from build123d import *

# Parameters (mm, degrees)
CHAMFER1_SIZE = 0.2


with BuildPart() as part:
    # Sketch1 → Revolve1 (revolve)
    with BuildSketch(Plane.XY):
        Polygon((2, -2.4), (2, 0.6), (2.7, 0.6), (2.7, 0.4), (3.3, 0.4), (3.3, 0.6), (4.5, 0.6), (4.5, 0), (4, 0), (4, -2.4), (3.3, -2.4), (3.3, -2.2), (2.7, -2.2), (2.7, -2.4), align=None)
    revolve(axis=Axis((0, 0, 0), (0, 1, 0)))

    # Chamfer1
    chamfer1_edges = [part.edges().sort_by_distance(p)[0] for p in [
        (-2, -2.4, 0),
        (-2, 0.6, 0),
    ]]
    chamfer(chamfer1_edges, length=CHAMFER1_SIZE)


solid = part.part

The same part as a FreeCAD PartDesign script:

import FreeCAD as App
import Part
import Sketcher
Q = App.Units.Quantity


def edges_at(feature, points):
    """Names of the edges that pass closest to the given points."""
    edges = feature.Shape.Edges
    near = lambda p: min(range(len(edges)), key=lambda i: edges[i].distToShape(Part.Vertex(*p))[0])
    return sorted({f"Edge{near(p) + 1}" for p in points})

doc = App.newDocument("Part")
params = doc.addObject("Spreadsheet::Sheet", "Params")
for row, (alias, value) in enumerate([
    ("sketch1_height", "3 mm"),
    ("sketch1_width", "0.7 mm"),
    ("sketch1_width2", "0.6 mm"),
    ("sketch1_width3", "0.5 mm"),
    ("sketch1_height2", "0.2 mm"),
    ("revolution_angle", "360 deg"),
    ("chamfer_size", "0.2 mm"),
], start=1):
    params.set(f"A{row}", alias)
    params.set(f"B{row}", "=" + value)
    params.setAlias(f"B{row}", alias)

body = doc.addObject("PartDesign::Body", "Body")

# Sketch on XY plane
sketch1 = body.newObject("Sketcher::SketchObject", "Sketch")
sketch1.AttachmentSupport = (doc.getObject("XY_Plane"), [""])
sketch1.MapMode = "FlatFace"
sketch1.addGeometry(Part.LineSegment(App.Vector(2, 0.6, 0), App.Vector(2, -2.4, 0)), False)
sketch1.addGeometry(Part.LineSegment(App.Vector(2, -2.4, 0), App.Vector(2.7, -2.4, 0)), False)
sketch1.addGeometry(Part.LineSegment(App.Vector(2.7, -2.4, 0), App.Vector(2.7, -2.2, 0)), False)
sketch1.addGeometry(Part.LineSegment(App.Vector(2.7, -2.2, 0), App.Vector(3.3, -2.2, 0)), False)
sketch1.addGeometry(Part.LineSegment(App.Vector(3.3, -2.2, 0), App.Vector(3.3, -2.4, 0)), False)
sketch1.addGeometry(Part.LineSegment(App.Vector(3.3, -2.4, 0), App.Vector(4, -2.4, 0)), False)
sketch1.addGeometry(Part.LineSegment(App.Vector(4, -2.4, 0), App.Vector(4, 0, 0)), False)
sketch1.addGeometry(Part.LineSegment(App.Vector(4, 0, 0), App.Vector(4.5, 0, 0)), False)
sketch1.addGeometry(Part.LineSegment(App.Vector(4.5, 0, 0), App.Vector(4.5, 0.6, 0)), False)
sketch1.addGeometry(Part.LineSegment(App.Vector(4.5, 0.6, 0), App.Vector(3.3, 0.6, 0)), False)
sketch1.addGeometry(Part.LineSegment(App.Vector(3.3, 0.6, 0), App.Vector(3.3, 0.4, 0)), False)
sketch1.addGeometry(Part.LineSegment(App.Vector(3.3, 0.4, 0), App.Vector(2.7, 0.4, 0)), False)
sketch1.addGeometry(Part.LineSegment(App.Vector(2.7, 0.4, 0), App.Vector(2.7, 0.6, 0)), False)
sketch1.addGeometry(Part.LineSegment(App.Vector(2.7, 0.6, 0), App.Vector(2, 0.6, 0)), False)
sketch1.addConstraint(Sketcher.Constraint("Coincident", 0, 2, 1, 1))
sketch1.addConstraint(Sketcher.Constraint("Coincident", 1, 2, 2, 1))
sketch1.addConstraint(Sketcher.Constraint("Coincident", 2, 2, 3, 1))
sketch1.addConstraint(Sketcher.Constraint("Coincident", 3, 2, 4, 1))
sketch1.addConstraint(Sketcher.Constraint("Coincident", 4, 2, 5, 1))
sketch1.addConstraint(Sketcher.Constraint("Coincident", 5, 2, 6, 1))
sketch1.addConstraint(Sketcher.Constraint("Coincident", 6, 2, 7, 1))
sketch1.addConstraint(Sketcher.Constraint("Coincident", 7, 2, 8, 1))
sketch1.addConstraint(Sketcher.Constraint("Coincident", 8, 2, 9, 1))
sketch1.addConstraint(Sketcher.Constraint("Coincident", 9, 2, 10, 1))
sketch1.addConstraint(Sketcher.Constraint("Coincident", 10, 2, 11, 1))
sketch1.addConstraint(Sketcher.Constraint("Coincident", 11, 2, 12, 1))
sketch1.addConstraint(Sketcher.Constraint("Coincident", 12, 2, 13, 1))
sketch1.addConstraint(Sketcher.Constraint("Coincident", 13, 2, 0, 1))
sketch1.addConstraint(Sketcher.Constraint("Vertical", 0))
sketch1.addConstraint(Sketcher.Constraint("Horizontal", 1))
sketch1.addConstraint(Sketcher.Constraint("Vertical", 2))
sketch1.addConstraint(Sketcher.Constraint("Horizontal", 3))
sketch1.addConstraint(Sketcher.Constraint("Vertical", 4))
sketch1.addConstraint(Sketcher.Constraint("Horizontal", 5))
sketch1.addConstraint(Sketcher.Constraint("Vertical", 6))
sketch1.addConstraint(Sketcher.Constraint("Horizontal", 7))
sketch1.addConstraint(Sketcher.Constraint("Vertical", 8))
sketch1.addConstraint(Sketcher.Constraint("Horizontal", 9))
sketch1.addConstraint(Sketcher.Constraint("Vertical", 10))
sketch1.addConstraint(Sketcher.Constraint("Horizontal", 11))
sketch1.addConstraint(Sketcher.Constraint("Vertical", 12))
sketch1.addConstraint(Sketcher.Constraint("Horizontal", 13))
sketch1.addConstraint(Sketcher.Constraint("PointOnObject", 6, 2, -1))
sketch1.addConstraint(Sketcher.Constraint("Horizontal", 1, 2, 4, 2))
sketch1.addConstraint(Sketcher.Constraint("Horizontal", 9, 2, 12, 2))
sketch1.addConstraint(Sketcher.Constraint("Vertical", 4, 2, 9, 2))
sketch1.addConstraint(Sketcher.Constraint("Vertical", 2, 2, 11, 2))
sketch1.addConstraint(Sketcher.Constraint("Equal", 1, 5))
sketch1.addConstraint(Sketcher.Constraint("Equal", 11, 8))
sketch1.addConstraint(Sketcher.Constraint("Equal", 4, 10))
sketch1.addConstraint(Sketcher.Constraint("DistanceY", 0, 2, 0, 1, Q("3 mm")))
sketch1.addConstraint(Sketcher.Constraint("DistanceX", 1, 1, 1, 2, Q("0.7 mm")))
sketch1.addConstraint(Sketcher.Constraint("DistanceX", 3, 1, 3, 2, Q("0.6 mm")))
sketch1.addConstraint(Sketcher.Constraint("DistanceX", 7, 1, 7, 2, Q("0.5 mm")))
sketch1.addConstraint(Sketcher.Constraint("DistanceY", 2, 1, 2, 2, Q("0.2 mm")))
sketch1.addConstraint(Sketcher.Constraint("DistanceX", -1, 1, 0, 2, Q("2 mm")))
sketch1.setExpression("Constraints[36]", "Params.sketch1_height")
sketch1.setExpression("Constraints[37]", "Params.sketch1_width")
sketch1.setExpression("Constraints[38]", "Params.sketch1_width2")
sketch1.setExpression("Constraints[39]", "Params.sketch1_width3")
sketch1.setExpression("Constraints[40]", "Params.sketch1_height2")
revolution = body.newObject("PartDesign::Revolution", "Revolution")
revolution.Profile = sketch1
revolution.ReferenceAxis = (sketch1, ["V_Axis"])
revolution.setExpression("Angle", "Params.revolution_angle")
doc.recompute()

chamfer = body.newObject("PartDesign::Chamfer", "Chamfer")
chamfer.Base = (revolution, edges_at(revolution, [(-2, -2.4, 0), (-2, 0.6, 0)]))
chamfer.setExpression("Size", "Params.chamfer_size")

doc.recompute()
